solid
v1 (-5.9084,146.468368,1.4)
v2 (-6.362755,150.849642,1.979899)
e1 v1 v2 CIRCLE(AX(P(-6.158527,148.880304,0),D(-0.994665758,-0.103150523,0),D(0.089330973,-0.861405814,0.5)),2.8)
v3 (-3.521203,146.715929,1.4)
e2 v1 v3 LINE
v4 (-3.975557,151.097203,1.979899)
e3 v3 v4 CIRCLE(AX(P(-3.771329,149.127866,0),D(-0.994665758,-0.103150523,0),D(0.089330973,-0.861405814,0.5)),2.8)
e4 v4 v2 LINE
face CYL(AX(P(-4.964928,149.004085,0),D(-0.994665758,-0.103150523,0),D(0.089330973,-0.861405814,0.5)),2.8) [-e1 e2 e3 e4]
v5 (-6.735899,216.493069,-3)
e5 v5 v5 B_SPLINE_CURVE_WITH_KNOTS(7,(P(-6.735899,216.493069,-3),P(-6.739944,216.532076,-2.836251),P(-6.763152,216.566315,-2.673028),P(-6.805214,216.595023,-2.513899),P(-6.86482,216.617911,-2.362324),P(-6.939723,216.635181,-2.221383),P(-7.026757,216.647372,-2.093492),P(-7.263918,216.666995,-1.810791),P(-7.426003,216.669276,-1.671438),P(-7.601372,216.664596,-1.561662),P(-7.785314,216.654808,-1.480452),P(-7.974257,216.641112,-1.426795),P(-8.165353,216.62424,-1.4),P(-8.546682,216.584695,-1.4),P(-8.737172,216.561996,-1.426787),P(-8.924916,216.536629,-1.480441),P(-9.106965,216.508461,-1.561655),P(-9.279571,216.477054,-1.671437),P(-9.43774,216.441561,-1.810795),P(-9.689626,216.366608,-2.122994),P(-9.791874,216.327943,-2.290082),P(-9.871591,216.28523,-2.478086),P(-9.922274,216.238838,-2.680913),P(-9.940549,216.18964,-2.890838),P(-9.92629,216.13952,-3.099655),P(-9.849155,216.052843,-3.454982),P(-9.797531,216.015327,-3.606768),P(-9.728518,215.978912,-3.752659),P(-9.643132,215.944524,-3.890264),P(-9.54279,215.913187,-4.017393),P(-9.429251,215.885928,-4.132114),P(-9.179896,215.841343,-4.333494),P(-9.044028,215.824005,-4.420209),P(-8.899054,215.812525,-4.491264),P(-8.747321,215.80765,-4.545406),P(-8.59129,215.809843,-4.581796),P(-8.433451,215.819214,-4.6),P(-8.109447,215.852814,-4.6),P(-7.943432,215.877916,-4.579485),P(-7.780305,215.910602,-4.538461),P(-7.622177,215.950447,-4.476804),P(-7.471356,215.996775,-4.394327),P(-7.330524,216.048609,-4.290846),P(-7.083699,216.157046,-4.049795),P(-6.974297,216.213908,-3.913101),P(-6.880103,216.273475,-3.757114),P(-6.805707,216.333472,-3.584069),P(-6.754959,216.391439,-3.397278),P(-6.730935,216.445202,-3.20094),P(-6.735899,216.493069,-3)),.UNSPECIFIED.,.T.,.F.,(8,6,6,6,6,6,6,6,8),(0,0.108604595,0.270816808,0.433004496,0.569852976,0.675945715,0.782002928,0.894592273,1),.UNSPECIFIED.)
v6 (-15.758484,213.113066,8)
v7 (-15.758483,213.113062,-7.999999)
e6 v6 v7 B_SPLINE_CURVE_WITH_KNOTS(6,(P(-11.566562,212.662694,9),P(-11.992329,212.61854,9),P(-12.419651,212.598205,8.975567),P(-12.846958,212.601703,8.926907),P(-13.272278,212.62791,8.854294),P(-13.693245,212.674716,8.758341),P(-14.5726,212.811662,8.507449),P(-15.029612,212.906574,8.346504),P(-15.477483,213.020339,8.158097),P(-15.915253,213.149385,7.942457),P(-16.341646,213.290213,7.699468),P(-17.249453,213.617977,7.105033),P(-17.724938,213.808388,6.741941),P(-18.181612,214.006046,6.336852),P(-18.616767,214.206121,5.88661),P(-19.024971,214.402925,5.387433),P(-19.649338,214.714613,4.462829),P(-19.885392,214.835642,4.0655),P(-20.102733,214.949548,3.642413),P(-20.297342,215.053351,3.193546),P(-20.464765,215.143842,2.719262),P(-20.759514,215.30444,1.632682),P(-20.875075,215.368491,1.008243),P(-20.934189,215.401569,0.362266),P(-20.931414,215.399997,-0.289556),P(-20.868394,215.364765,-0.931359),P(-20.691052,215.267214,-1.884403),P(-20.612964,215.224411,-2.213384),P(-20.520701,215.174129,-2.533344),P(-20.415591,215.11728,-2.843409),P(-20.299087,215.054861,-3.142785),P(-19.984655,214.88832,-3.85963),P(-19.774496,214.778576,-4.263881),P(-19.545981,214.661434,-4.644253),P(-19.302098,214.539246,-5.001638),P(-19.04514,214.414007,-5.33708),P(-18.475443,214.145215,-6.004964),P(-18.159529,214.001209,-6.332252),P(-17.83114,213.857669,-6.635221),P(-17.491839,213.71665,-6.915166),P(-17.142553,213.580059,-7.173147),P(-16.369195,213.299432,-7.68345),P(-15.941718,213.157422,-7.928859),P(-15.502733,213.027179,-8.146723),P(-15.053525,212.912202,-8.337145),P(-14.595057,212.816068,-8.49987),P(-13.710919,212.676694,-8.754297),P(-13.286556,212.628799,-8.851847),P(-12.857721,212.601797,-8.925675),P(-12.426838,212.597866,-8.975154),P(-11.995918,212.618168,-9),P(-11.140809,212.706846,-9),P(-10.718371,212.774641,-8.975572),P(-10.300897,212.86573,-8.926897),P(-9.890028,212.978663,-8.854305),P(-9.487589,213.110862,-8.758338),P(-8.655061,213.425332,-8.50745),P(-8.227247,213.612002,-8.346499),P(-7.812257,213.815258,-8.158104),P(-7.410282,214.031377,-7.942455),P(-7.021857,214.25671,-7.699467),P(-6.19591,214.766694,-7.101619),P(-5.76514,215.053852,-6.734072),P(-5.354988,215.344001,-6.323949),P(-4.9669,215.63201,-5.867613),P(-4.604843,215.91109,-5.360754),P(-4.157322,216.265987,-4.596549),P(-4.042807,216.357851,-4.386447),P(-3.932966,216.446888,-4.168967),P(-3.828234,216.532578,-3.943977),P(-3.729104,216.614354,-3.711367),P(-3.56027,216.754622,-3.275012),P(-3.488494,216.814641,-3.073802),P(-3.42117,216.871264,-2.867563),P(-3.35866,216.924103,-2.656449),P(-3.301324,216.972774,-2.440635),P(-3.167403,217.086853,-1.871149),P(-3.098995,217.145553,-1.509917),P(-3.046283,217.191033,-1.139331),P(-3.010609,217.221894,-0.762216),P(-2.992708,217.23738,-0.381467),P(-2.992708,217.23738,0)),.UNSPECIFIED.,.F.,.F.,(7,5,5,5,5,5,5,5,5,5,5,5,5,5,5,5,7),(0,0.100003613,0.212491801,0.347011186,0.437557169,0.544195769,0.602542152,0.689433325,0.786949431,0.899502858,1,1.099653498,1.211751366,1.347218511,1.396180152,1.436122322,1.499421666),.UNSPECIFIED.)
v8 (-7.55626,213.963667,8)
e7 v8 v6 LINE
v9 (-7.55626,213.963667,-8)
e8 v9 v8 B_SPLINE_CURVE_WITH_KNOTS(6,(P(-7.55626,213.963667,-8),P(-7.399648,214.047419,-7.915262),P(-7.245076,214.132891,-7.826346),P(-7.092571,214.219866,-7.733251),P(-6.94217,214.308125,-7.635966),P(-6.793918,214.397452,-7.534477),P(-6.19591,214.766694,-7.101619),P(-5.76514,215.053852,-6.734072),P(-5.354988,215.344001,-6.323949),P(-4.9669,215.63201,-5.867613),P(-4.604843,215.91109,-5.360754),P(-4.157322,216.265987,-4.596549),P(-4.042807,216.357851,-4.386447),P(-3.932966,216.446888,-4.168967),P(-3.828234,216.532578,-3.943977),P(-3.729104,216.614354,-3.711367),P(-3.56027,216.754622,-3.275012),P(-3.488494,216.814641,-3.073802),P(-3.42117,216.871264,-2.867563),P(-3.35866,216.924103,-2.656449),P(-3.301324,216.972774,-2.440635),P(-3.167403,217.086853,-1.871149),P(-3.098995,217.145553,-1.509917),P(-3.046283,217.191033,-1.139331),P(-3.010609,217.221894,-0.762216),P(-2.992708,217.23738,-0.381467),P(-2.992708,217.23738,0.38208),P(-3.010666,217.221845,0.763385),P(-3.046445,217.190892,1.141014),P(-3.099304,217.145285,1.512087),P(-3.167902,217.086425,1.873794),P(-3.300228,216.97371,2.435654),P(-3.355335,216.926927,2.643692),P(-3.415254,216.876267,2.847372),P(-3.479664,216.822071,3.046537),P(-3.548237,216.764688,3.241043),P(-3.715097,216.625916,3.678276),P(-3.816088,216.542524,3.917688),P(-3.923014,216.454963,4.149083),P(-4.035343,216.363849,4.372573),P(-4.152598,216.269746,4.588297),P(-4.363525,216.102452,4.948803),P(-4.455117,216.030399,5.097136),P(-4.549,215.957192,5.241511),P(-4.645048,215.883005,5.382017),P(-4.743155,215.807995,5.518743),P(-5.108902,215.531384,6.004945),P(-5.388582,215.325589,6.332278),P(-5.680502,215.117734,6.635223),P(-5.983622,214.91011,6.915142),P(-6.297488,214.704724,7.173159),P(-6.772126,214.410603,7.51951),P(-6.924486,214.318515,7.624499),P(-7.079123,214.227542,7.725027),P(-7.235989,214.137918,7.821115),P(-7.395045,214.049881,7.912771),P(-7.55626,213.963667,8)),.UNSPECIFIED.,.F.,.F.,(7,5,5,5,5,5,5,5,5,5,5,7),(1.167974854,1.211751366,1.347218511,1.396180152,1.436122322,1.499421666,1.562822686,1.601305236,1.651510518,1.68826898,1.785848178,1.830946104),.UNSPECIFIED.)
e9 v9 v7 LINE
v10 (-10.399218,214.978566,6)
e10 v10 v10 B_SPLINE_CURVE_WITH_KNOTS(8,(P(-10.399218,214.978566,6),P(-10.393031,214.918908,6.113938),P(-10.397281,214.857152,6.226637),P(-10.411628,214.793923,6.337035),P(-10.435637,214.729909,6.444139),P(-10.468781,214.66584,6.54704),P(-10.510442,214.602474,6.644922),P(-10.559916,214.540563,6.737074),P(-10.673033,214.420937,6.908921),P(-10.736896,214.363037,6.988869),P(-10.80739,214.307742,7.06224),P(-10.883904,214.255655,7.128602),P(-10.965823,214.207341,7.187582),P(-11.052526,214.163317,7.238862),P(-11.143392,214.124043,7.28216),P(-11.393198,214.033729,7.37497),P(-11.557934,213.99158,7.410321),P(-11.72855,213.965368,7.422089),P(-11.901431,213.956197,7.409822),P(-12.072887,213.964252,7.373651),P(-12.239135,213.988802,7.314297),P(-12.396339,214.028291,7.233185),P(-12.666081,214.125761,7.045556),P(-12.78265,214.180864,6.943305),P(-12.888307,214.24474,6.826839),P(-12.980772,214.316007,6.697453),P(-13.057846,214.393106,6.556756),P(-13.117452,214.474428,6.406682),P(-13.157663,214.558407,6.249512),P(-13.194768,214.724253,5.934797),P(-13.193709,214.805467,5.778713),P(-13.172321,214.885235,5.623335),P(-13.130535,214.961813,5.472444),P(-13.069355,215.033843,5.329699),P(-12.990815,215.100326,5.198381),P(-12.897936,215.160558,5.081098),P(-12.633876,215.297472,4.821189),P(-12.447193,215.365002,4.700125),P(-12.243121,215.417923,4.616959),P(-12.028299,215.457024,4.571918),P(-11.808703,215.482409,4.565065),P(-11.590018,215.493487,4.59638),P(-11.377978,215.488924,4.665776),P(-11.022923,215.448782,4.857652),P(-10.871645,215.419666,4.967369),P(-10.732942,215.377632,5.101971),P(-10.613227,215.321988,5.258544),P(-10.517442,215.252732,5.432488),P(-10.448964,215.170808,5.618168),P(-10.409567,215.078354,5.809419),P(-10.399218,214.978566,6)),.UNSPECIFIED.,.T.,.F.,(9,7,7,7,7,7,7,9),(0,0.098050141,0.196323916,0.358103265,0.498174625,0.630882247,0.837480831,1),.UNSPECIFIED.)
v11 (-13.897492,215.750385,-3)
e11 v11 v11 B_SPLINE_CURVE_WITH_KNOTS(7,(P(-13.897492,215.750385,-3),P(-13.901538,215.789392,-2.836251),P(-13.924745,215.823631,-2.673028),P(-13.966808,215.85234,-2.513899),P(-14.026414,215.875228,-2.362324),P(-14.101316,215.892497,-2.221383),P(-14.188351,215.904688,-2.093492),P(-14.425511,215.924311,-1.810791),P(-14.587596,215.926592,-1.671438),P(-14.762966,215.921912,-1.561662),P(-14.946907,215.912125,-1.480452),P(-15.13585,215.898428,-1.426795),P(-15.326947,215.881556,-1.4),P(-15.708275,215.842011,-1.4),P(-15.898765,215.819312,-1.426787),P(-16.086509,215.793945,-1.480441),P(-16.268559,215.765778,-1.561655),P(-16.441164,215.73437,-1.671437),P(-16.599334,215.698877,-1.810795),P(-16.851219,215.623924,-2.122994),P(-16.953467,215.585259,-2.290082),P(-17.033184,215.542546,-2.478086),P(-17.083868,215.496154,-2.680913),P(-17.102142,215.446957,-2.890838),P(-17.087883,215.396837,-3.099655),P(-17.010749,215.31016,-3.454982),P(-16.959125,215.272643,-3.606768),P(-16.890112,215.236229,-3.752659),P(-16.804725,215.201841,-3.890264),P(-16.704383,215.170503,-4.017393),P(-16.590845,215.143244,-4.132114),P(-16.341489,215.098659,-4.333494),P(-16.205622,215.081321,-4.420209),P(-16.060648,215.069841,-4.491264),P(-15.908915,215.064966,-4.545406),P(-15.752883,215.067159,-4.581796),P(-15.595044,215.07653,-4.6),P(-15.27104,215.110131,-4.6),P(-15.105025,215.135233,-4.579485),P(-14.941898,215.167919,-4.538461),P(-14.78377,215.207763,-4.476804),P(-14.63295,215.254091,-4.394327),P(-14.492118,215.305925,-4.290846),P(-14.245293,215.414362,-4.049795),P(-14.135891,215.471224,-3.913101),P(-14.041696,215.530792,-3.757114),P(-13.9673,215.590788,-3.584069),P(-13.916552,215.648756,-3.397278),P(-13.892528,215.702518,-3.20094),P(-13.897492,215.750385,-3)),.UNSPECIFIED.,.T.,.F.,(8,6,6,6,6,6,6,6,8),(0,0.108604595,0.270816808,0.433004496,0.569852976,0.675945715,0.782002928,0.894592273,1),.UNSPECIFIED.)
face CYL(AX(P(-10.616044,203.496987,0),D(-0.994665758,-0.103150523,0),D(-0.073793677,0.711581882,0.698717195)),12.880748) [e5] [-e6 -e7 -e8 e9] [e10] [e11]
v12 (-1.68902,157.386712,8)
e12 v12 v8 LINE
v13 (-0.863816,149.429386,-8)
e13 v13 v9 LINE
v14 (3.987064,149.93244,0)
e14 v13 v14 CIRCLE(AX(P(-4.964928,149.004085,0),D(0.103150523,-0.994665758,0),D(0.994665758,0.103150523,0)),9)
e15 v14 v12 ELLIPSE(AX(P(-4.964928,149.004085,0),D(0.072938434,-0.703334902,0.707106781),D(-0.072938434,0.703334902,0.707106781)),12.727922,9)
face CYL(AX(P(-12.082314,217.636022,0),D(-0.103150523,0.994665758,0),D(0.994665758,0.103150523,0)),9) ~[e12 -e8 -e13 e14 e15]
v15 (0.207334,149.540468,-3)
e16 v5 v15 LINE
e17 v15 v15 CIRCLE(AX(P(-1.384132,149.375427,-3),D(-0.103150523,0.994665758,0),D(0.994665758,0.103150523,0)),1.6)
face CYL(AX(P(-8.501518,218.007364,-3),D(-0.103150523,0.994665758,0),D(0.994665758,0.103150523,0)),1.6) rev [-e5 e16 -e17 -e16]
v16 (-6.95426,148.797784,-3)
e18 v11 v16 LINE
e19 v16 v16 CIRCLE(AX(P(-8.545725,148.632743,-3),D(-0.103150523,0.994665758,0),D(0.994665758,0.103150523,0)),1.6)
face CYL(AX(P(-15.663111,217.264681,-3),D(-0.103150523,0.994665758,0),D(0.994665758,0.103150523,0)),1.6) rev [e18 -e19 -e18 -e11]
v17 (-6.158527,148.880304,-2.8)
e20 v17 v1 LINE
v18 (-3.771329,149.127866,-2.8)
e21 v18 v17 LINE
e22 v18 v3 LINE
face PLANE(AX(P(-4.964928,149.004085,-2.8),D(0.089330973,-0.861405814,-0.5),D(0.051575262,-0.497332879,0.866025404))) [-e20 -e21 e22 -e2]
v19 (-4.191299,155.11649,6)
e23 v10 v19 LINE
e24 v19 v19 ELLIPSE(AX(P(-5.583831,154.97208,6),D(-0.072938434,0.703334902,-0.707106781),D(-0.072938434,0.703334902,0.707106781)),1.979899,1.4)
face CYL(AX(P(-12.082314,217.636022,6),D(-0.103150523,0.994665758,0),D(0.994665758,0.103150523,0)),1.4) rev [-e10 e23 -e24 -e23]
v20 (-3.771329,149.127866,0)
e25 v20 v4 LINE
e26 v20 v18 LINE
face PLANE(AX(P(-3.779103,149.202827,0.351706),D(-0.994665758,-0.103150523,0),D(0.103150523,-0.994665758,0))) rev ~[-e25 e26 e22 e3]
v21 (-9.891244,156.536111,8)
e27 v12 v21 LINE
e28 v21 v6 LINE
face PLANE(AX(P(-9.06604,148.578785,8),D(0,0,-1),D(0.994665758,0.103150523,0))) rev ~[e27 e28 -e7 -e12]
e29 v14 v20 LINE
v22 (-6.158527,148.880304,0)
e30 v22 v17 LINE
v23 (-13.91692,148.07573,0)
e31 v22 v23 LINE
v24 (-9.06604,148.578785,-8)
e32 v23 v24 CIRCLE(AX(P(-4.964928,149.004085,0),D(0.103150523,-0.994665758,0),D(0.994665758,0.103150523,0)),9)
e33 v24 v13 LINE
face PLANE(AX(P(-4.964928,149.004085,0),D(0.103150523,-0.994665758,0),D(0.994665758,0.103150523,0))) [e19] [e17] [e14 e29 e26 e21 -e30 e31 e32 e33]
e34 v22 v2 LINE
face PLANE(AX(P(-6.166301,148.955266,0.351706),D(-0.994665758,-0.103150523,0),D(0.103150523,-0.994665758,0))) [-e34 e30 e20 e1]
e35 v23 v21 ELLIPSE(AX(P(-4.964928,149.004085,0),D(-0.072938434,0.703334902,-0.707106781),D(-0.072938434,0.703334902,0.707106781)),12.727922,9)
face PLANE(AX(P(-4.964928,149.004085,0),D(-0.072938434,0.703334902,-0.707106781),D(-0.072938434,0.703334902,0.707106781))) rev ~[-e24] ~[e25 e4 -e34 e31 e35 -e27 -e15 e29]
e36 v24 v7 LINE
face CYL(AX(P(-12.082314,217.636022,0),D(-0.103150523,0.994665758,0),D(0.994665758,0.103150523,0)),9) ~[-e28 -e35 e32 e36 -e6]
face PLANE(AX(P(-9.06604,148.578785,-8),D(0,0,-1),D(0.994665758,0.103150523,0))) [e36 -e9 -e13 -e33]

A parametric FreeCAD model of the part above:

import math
import FreeCAD as App
import Part
import Sketcher

V = App.Vector
Q = App.Units.Quantity

doc = App.newDocument("Part")
body = doc.addObject("PartDesign::Body", "Body")

# Sketch on an angled plane
sketch1 = body.newObject("Sketcher::SketchObject", "Sketch")
sketch1.Placement = App.Placement(V(-12.082314, 217.636022, 0), App.Rotation(V(-0.994665758, -0.103150523, 0), V(0, 0, -1.000000001), V(0.103150523, -0.994665758, 0), "ZXY"))
sketch1.addGeometry(Part.Circle(V(0, 0, 0), V(0, 0, 1), 9), False)
sketch1.addConstraint([
    Sketcher.Constraint("Coincident", 0, 3, -1, 1),
    Sketcher.Constraint("Diameter", 0, Q("18 mm")),
])
pad1 = body.newObject("PartDesign::Pad", "Pad")
pad1.Profile = sketch1
pad1.Length = 69

# Sketch on an angled plane
sketch2 = body.newObject("Sketcher::SketchObject", "Sketch001")
sketch2.Placement = App.Placement(V(10.375762, 1.076005, 0), App.Rotation(V(0.103150523, -0.994665758, 0), V(0, 0, 1.000000001), V(-0.994665758, -0.103150523, 0), "ZXY"))
sketch2.addGeometry([
    Part.LineSegment(V(-213, 9, 0), V(-218, 9, 0)),
    Part.LineSegment(V(-218, 9, 0), V(-218, -9, 0)),
    Part.LineSegment(V(-218, -9, 0), V(-213, -9, 0)),
    Part.ArcOfCircle(Part.Circle(V(-204, 0, 0), V(0, 0, 1), 13), math.radians(136), math.radians(224)),
], False)
sketch2.addConstraint([
    Sketcher.Constraint("Coincident", 0, 2, 1, 1),
    Sketcher.Constraint("Coincident", 1, 2, 2, 1),
    Sketcher.Constraint("Coincident", 2, 2, 3, 2),
    Sketcher.Constraint("Coincident", 3, 1, 0, 1),
    Sketcher.Constraint("Horizontal", 0),
    Sketcher.Constraint("Vertical", 1),
    Sketcher.Constraint("Horizontal", 2),
    Sketcher.Constraint("Symmetric", 2, 2, 3, 1, -1),
    Sketcher.Constraint("DistanceX", 0, 2, 0, 1, Q("5 mm")),
    Sketcher.Constraint("DistanceY", 1, 2, 1, 1, Q("18 mm")),
    Sketcher.Constraint("Radius", 3, Q("12.880748 mm")),
    Sketcher.Constraint("DistanceX", 3, 3, -1, 1, Q("203.506535 mm")),
])
pocket1 = body.newObject("PartDesign::Pocket", "Pocket")
pocket1.Profile = sketch2
pocket1.Type = "ThroughAll"
pocket1.Midplane = True

# Sketch on an angled plane
sketch3 = body.newObject("Sketcher::SketchObject", "Sketch002")
sketch3.Placement = App.Placement(V(10.375762, 1.076005, 0), App.Rotation(V(0.103150523, -0.994665758, 0), V(0, 0, 1.000000001), V(-0.994665758, -0.103150523, 0), "ZXY"))
sketch3.addGeometry([
    Part.LineSegment(V(-158, 9, 0), V(-149, 0, 0)),
    Part.LineSegment(V(-149, 0, 0), V(-149, 9, 0)),
    Part.LineSegment(V(-149, 9, 0), V(-158, 9, 0)),
], False)
sketch3.addConstraint([
    Sketcher.Constraint("Coincident", 0, 2, 1, 1),
    Sketcher.Constraint("Coincident", 1, 2, 2, 1),
    Sketcher.Constraint("Coincident", 2, 2, 0, 1),
    Sketcher.Constraint("Vertical", 1),
    Sketcher.Constraint("Horizontal", 2),
    Sketcher.Constraint("PointOnObject", 0, 2, -1),
    Sketcher.Constraint("Equal", 2, 1),
    Sketcher.Constraint("DistanceX", 2, 2, 2, 1, Q("9 mm")),
    Sketcher.Constraint("DistanceX", 0, 2, -1, 1, Q("148.721396 mm")),
])
pocket2 = body.newObject("PartDesign::Pocket", "Pocket001")
pocket2.Profile = sketch3
pocket2.Type = "ThroughAll"
pocket2.Midplane = True

# Sketch on an angled plane
sketch4 = body.newObject("Sketcher::SketchObject", "Sketch003")
sketch4.Placement = App.Placement(V(10.375762, 1.076005, 0), App.Rotation(V(0.103150523, -0.994665758, 0), V(0, 0, 1.000000001), V(-0.994665758, -0.103150523, 0), "ZXY"))
sketch4.addGeometry([
    Part.LineSegment(V(-151.5, 0.1, 0), V(-148.7, 0, 0)),
    Part.LineSegment(V(-148.7, 0, 0), V(-148.7, -2.8, 0)),
    Part.LineSegment(V(-148.7, -2.8, 0), V(-146.3, 1.4, 0)),
    Part.ArcOfCircle(Part.Circle(V(-148.7, 0, 0), V(0, 0, 1), 2.8), math.radians(30), math.radians(178)),
], False)
sketch4.addConstraint([
    Sketcher.Constraint("Coincident", 0, 2, 1, 1),
    Sketcher.Constraint("Coincident", 1, 2, 2, 1),
    Sketcher.Constraint("Coincident", 2, 2, 3, 1),
    Sketcher.Constraint("Coincident", 3, 2, 0, 1),
    Sketcher.Constraint("Vertical", 1),
    Sketcher.Constraint("Coincident", 0, 2, 3, 3),
    Sketcher.Constraint("PointOnObject", 3, 3, -1),
    Sketcher.Constraint("Radius", 3, Q("2.8 mm")),
    Sketcher.Constraint("Angle", 2, Q("60 deg")),
    Sketcher.Constraint("DistanceY", 1, 2, 1, 1, Q("2.8 mm")),
    Sketcher.Constraint("DistanceY", -1, 1, 3, 2, Q("0.11221 mm")),
    Sketcher.Constraint("DistanceX", 3, 3, -1, 1, Q("148.721396 mm")),
])
pad2 = body.newObject("PartDesign::Pad", "Pad001")
pad2.Profile = sketch4
pad2.Length = 2.4
pad2.Midplane = True

# Sketch on an angled plane
sketch5 = body.newObject("Sketcher::SketchObject", "Sketch004")
sketch5.Placement = App.Placement(V(-12.082314, 217.636022, 0), App.Rotation(V(-0.994665758, -0.103150523, 0), V(0, 0, -1.000000001), V(0.103150523, -0.994665758, 0), "ZXY"))
sketch5.addGeometry([
    Part.Circle(V(-3.6, 3, 0), V(0, 0, 1), 1.6),
    Part.Circle(V(3.6, 3, 0), V(0, 0, 1), 1.6),
    Part.Circle(V(0, -6, 0), V(0, 0, 1), 1.4),
], False)
sketch5.addConstraint([
    Sketcher.Constraint("Equal", 0, 1),
    Sketcher.Constraint("Symmetric", 0, 3, 1, 3, -2),
    Sketcher.Constraint("PointOnObject", 2, 3, -2),
    Sketcher.Constraint("Diameter", 0, Q("3.2 mm")),
    Sketcher.Constraint("Diameter", 2, Q("2.8 mm")),
    Sketcher.Constraint("DistanceY", -1, 1, 0, 3, Q("3 mm")),
    Sketcher.Constraint("DistanceY", 2, 3, -1, 1, Q("6 mm")),
    Sketcher.Constraint("DistanceX", 0, 3, -1, 1, Q("3.6 mm")),
])
pocket3 = body.newObject("PartDesign::Pocket", "Pocket002")
pocket3.Profile = sketch5
pocket3.Type = "ThroughAll"
pocket3.Midplane = True

# Sketch on an angled plane
sketch6 = body.newObject("Sketcher::SketchObject", "Sketch005")
sketch6.Placement = App.Placement(V(-15.34069, 147.92808, 0), App.Rotation(V(0.994665758, 0.103150523, 0), V(0, 0, 1.000000001), V(0.103150523, -0.994665758, 0), "ZXY"))
sketch6.addGeometry([
    Part.LineSegment(V(15, -8, 0), V(6, -8, 0)),
    Part.ArcOfCircle(Part.Circle(V(10, 0, 0), V(0, 0, 1), 9), math.radians(-117), math.radians(-63)),
    Part.LineSegment(V(6, 8, 0), V(15, 8, 0)),
    Part.ArcOfCircle(Part.Circle(V(10, 0, 0), V(0, 0, 1), 9), math.radians(63), math.radians(117)),
], False)
sketch6.addConstraint([
    Sketcher.Constraint("Coincident", 0, 1, 1, 2),
    Sketcher.Constraint("Coincident", 1, 1, 0, 2),
    Sketcher.Constraint("Coincident", 2, 1, 3, 2),
    Sketcher.Constraint("Coincident", 3, 1, 2, 2),
    Sketcher.Constraint("Horizontal", 0),
    Sketcher.Constraint("Horizontal", 2),
    Sketcher.Constraint("Coincident", 3, 3, 1, 3),
    Sketcher.Constraint("Equal", 1, 3),
    Sketcher.Constraint("Symmetric", 1, 1, 2, 1, -1),
    Sketcher.Constraint("Radius", 1, Q("9 mm")),
    Sketcher.Constraint("DistanceY", 0, 1, -1, 1, Q("8 mm")),
    Sketcher.Constraint("DistanceX", -1, 1, 1, 1, Q("6.3083 mm")),
])
pocket4 = body.newObject("PartDesign::Pocket", "Pocket003")
pocket4.Profile = sketch6
pocket4.Type = "ThroughAll"

doc.recompute()
